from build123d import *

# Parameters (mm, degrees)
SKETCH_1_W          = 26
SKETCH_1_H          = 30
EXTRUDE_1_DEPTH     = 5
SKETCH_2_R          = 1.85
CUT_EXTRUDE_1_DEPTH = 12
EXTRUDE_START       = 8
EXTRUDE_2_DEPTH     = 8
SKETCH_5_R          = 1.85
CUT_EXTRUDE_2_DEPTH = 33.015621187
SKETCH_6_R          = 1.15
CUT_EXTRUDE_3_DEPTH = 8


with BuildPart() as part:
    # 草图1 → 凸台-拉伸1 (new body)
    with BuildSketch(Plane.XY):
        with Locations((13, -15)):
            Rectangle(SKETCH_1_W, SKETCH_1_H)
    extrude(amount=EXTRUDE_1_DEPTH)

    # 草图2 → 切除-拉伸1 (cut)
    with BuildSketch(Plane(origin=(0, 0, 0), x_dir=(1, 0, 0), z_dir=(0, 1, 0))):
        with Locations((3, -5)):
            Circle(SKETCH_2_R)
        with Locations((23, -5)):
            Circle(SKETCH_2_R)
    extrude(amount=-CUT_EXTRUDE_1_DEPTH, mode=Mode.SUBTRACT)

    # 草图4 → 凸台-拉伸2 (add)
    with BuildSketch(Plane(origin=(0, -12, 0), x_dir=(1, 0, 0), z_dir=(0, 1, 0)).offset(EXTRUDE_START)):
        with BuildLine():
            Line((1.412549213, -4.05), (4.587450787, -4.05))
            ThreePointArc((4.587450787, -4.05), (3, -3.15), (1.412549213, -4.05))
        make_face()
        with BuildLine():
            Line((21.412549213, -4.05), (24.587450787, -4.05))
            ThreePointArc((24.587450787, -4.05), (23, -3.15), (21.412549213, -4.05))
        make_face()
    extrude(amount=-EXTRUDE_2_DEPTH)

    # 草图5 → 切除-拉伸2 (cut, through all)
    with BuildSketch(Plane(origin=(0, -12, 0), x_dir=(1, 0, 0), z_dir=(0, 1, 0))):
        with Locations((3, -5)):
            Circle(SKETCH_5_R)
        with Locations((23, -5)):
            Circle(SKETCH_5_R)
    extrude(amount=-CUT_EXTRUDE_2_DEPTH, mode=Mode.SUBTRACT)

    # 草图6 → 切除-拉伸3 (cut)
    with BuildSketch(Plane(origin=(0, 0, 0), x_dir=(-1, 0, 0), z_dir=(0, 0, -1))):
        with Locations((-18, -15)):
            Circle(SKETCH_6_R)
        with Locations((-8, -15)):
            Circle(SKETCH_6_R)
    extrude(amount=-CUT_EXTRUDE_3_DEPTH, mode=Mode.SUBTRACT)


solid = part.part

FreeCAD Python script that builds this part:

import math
import FreeCAD as App
import Part
import Sketcher


def add_polygon(sketch, points):
    """Adds a closed chain of lines whose ends are joined by coincident constraints."""
    first, n = sketch.GeometryCount, len(points)
    for a, b in zip(points, points[1:] + points[:1]):
        sketch.addGeometry(Part.LineSegment(App.Vector(*a, 0), App.Vector(*b, 0)), False)
    for i in range(n):
        sketch.addConstraint(Sketcher.Constraint("Coincident", first + i, 2, first + (i + 1) % n, 1))

doc = App.newDocument("Part")
body = doc.addObject("PartDesign::Body", "Body")

# Sketch on XY plane
sketch1 = body.newObject("Sketcher::SketchObject", "Sketch")
sketch1.AttachmentSupport = (doc.getObject("XY_Plane"), [""])
sketch1.MapMode = "FlatFace"
add_polygon(sketch1, [(0, 0), (0, -30), (26, -30), (26, 0)])  # lines 0-3
sketch1.addConstraint([
    Sketcher.Constraint("Vertical", 0),
    Sketcher.Constraint("Horizontal", 1),
    Sketcher.Constraint("Vertical", 2),
    Sketcher.Constraint("Horizontal", 3),
    Sketcher.Constraint("Coincident", 3, 2, -1, 1),
    Sketcher.Constraint("DistanceX", 1, 1, 1, 2, 26.0),
    Sketcher.Constraint("DistanceY", 0, 2, 0, 1, 30.0),
])
pad1 = body.newObject("PartDesign::Pad", "Pad")
pad1.Profile = sketch1
pad1.Length = 5

# Sketch on XZ plane
sketch2 = body.newObject("Sketcher::SketchObject", "Sketch001")
sketch2.AttachmentSupport = (doc.getObject("XZ_Plane"), [""])
sketch2.MapMode = "FlatFace"
sketch2.addGeometry([
    Part.Circle(App.Vector(3, 5, 0), App.Vector(0, 0, 1), 1.85),
    Part.Circle(App.Vector(23, 5, 0), App.Vector(0, 0, 1), 1.85),
], False)
sketch2.addConstraint([
    Sketcher.Constraint("Equal", 0, 1),
    Sketcher.Constraint("Horizontal", 0, 3, 1, 3),
    Sketcher.Constraint("Diameter", 0, 3.7),
    Sketcher.Constraint("DistanceX", -1, 1, 0, 3, 3.0),
    Sketcher.Constraint("DistanceY", -1, 1, 0, 3, 5.0),
    Sketcher.Constraint("DistanceX", -1, 1, 1, 3, 23.0),
])
pocket1 = body.newObject("PartDesign::Pocket", "Pocket")
pocket1.Profile = sketch2
pocket1.Length = 12
pocket1.Reversed = True

# Sketch on XZ plane
sketch3 = body.newObject("Sketcher::SketchObject", "Sketch002")
sketch3.AttachmentSupport = (doc.getObject("XZ_Plane"), [""])
sketch3.MapMode = "FlatFace"
sketch3.AttachmentOffset = App.Placement(App.Vector(0, 0, 4), App.Rotation())
sketch3.addGeometry([
    Part.LineSegment(App.Vector(1.412549, 4.05, 0), App.Vector(4.587451, 4.05, 0)),
    Part.ArcOfCircle(Part.Circle(App.Vector(3, 5, 0), App.Vector(0, 0, 1), 1.85), math.radians(-149.101852), math.radians(-30.898148)),
    Part.LineSegment(App.Vector(21.412549, 4.05, 0), App.Vector(24.587451, 4.05, 0)),
    Part.ArcOfCircle(Part.Circle(App.Vector(23, 5, 0), App.Vector(0, 0, 1), 1.85), math.radians(-149.101852), math.radians(-30.898148)),
], False)
sketch3.addConstraint([
    Sketcher.Constraint("Coincident", 0, 1, 1, 1),
    Sketcher.Constraint("Coincident", 1, 2, 0, 2),
    Sketcher.Constraint("Coincident", 2, 1, 3, 1),
    Sketcher.Constraint("Coincident", 3, 2, 2, 2),
    Sketcher.Constraint("Horizontal", 0),
    Sketcher.Constraint("Horizontal", 2),
    Sketcher.Constraint("Equal", 1, 3),
    Sketcher.Constraint("Horizontal", 1, 3, 3, 3),
    Sketcher.Constraint("Horizontal", 1, 2, 2, 1),
    Sketcher.Constraint("Radius", 1, 1.85),
    Sketcher.Constraint("DistanceX", -1, 1, 1, 3, 3.0),
    Sketcher.Constraint("DistanceY", -1, 1, 1, 3, 5.0),
    Sketcher.Constraint("DistanceX", -1, 1, 3, 3, 23.0),
    Sketcher.Constraint("DistanceY", -1, 1, 0, 1, 4.05),
])
pad2 = body.newObject("PartDesign::Pad", "Pad001")
pad2.Profile = sketch3
pad2.Length = 8

# Sketch on XZ plane
sketch4 = body.newObject("Sketcher::SketchObject", "Sketch003")
sketch4.AttachmentSupport = (doc.getObject("XZ_Plane"), [""])
sketch4.MapMode = "FlatFace"
sketch4.AttachmentOffset = App.Placement(App.Vector(0, 0, 12), App.Rotation())
sketch4.addGeometry([
    Part.Circle(App.Vector(3, 5, 0), App.Vector(0, 0, 1), 1.85),
    Part.Circle(App.Vector(23, 5, 0), App.Vector(0, 0, 1), 1.85),
], False)
sketch4.addConstraint([
    Sketcher.Constraint("Equal", 0, 1),
    Sketcher.Constraint("Horizontal", 0, 3, 1, 3),
    Sketcher.Constraint("Diameter", 0, 3.7),
    Sketcher.Constraint("DistanceX", -1, 1, 0, 3, 3.0),
    Sketcher.Constraint("DistanceY", -1, 1, 0, 3, 5.0),
    Sketcher.Constraint("DistanceX", -1, 1, 1, 3, 23.0),
])
pocket2 = body.newObject("PartDesign::Pocket", "Pocket001")
pocket2.Profile = sketch4
pocket2.Type = "ThroughAll"
pocket2.Reversed = True

# Sketch on XY plane
sketch5 = body.newObject("Sketcher::SketchObject", "Sketch004")
sketch5.AttachmentSupport = (doc.getObject("XY_Plane"), [""])
sketch5.MapMode = "FlatFace"
sketch5.addGeometry([
    Part.Circle(App.Vector(18, -15, 0), App.Vector(0, 0, 1), 1.15),
    Part.Circle(App.Vector(8, -15, 0), App.Vector(0, 0, 1), 1.15),
], False)
sketch5.addConstraint([
    Sketcher.Constraint("Equal", 0, 1),
    Sketcher.Constraint("Horizontal", 0, 3, 1, 3),
    Sketcher.Constraint("Diameter", 0, 2.3),
    Sketcher.Constraint("DistanceX", -1, 1, 0, 3, 18.0),
    Sketcher.Constraint("DistanceY", 0, 3, -1, 1, 15.0),
    Sketcher.Constraint("DistanceX", -1, 1, 1, 3, 8.0),
])
pocket3 = body.newObject("PartDesign::Pocket", "Pocket002")
pocket3.Profile = sketch5
pocket3.Length = 8
pocket3.Reversed = True

doc.recompute()
